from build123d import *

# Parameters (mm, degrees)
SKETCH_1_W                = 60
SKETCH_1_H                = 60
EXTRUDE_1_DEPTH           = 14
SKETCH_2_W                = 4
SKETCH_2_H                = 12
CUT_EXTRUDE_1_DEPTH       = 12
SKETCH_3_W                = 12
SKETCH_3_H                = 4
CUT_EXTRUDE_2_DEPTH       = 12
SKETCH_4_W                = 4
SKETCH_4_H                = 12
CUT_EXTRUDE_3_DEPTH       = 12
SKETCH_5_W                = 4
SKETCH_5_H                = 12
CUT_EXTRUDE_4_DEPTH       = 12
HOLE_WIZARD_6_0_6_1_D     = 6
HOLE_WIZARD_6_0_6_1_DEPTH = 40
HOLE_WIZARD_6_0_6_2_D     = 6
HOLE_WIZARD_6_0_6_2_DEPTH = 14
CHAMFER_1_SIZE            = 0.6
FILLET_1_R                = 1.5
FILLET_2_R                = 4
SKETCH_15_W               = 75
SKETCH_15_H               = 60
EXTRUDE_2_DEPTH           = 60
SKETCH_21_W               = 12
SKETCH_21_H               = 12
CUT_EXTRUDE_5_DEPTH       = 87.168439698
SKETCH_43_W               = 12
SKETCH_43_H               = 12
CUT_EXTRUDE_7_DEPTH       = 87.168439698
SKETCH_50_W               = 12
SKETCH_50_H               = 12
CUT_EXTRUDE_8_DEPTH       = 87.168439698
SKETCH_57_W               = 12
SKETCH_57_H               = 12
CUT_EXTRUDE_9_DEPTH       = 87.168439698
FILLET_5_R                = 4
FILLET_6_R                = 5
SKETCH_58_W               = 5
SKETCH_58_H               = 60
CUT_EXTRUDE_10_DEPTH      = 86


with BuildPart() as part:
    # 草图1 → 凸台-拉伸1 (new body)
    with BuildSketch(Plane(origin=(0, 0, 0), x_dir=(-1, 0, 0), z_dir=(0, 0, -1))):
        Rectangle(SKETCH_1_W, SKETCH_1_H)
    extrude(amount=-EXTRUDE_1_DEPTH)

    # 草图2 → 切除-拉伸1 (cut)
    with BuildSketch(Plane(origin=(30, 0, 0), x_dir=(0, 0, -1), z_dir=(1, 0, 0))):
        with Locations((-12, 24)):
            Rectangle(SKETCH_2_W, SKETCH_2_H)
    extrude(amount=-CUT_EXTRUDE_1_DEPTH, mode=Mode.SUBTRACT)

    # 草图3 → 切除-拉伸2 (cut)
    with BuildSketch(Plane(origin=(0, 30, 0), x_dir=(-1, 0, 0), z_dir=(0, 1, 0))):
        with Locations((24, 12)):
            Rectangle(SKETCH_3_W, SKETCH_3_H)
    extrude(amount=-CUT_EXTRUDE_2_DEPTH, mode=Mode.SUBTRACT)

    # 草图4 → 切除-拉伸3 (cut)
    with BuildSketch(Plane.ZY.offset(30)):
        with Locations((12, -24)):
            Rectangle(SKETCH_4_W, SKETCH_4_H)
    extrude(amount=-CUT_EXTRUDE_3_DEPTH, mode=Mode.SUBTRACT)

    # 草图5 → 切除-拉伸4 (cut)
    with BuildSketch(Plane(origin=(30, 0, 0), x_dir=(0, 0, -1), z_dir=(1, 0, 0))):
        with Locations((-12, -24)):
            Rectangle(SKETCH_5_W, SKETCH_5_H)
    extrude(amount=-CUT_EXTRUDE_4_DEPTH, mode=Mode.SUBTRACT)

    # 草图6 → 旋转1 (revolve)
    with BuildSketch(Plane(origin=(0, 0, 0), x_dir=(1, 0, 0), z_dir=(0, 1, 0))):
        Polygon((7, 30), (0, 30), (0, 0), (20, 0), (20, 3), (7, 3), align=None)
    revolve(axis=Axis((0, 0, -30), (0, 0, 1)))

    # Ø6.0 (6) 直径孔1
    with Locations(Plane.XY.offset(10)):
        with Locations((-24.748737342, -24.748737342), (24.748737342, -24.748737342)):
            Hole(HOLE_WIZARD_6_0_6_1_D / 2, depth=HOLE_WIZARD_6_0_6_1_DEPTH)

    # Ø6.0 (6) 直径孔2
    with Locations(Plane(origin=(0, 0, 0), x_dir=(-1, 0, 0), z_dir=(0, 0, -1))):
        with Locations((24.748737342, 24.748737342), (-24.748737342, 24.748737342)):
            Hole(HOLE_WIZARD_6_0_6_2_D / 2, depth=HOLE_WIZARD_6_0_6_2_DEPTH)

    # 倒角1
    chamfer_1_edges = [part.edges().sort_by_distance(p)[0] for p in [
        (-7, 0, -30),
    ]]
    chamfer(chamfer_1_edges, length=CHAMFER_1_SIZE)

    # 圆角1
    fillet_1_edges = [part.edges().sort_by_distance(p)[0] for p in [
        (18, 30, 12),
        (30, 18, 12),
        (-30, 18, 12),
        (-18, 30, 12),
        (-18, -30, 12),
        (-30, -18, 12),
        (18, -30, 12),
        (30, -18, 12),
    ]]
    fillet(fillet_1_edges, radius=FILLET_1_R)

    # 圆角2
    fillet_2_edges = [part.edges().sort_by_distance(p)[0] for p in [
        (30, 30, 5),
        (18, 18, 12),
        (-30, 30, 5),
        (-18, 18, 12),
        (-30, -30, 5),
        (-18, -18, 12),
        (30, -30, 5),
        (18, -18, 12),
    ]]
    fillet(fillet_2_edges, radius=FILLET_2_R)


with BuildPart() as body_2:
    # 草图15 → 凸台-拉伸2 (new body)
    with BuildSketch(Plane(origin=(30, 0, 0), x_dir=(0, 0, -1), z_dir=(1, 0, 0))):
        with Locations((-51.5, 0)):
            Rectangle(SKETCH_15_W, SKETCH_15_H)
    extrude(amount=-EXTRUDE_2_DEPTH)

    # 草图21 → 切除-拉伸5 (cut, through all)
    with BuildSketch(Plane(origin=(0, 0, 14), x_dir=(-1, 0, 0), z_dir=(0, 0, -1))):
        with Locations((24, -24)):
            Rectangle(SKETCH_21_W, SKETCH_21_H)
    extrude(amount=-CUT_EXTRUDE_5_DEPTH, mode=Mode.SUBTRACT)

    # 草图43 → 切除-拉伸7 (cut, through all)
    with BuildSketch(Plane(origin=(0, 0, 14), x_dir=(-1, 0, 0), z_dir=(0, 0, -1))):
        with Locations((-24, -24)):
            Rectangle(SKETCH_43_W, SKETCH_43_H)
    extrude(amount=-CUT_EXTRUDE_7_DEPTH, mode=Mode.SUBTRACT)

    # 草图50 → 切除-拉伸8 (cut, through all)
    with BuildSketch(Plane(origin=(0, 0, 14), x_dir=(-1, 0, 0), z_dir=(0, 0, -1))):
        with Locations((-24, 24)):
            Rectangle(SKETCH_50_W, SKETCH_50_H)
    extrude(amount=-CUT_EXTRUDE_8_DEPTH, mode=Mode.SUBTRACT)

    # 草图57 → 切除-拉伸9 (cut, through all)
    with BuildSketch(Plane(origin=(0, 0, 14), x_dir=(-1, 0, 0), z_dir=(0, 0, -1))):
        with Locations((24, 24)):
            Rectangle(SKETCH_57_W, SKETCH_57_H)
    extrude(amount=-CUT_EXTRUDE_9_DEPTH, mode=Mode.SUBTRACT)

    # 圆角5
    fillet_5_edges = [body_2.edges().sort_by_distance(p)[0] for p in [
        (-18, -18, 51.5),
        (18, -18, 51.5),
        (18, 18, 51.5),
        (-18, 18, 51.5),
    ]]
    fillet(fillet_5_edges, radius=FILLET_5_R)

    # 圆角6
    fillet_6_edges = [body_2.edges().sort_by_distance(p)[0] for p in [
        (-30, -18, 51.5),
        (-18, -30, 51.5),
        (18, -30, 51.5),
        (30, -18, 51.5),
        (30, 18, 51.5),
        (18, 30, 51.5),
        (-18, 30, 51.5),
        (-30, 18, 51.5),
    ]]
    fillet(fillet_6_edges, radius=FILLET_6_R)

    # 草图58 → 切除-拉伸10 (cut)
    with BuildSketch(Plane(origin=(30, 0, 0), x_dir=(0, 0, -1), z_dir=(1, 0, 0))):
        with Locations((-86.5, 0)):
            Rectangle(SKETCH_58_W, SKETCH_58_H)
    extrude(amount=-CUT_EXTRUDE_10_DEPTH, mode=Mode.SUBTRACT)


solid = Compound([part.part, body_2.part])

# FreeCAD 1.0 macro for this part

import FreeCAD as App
import Part
import Sketcher
from FreeCAD import Vector


def edges_at(feature, points):
    """Names of the edges that pass closest to the given points."""
    edges = feature.Shape.Edges
    near = lambda p: min(range(len(edges)), key=lambda i: edges[i].distToShape(Part.Vertex(*p))[0])
    return sorted({f"Edge{near(p) + 1}" for p in points})

doc = App.newDocument("Part")
body = doc.addObject("PartDesign::Body", "Body")

sketch1 = body.newObject("Sketcher::SketchObject", "Sketch")
sketch1.AttachmentSupport = (doc.getObject("XY_Plane"), [""])
sketch1.MapMode = "FlatFace"
sketch1.addGeometry([
    Part.LineSegment(Vector(30, 30, 0), Vector(30, -30, 0)),
    Part.LineSegment(Vector(30, -30, 0), Vector(-30, -30, 0)),
    Part.LineSegment(Vector(-30, -30, 0), Vector(-30, 30, 0)),
    Part.LineSegment(Vector(-30, 30, 0), Vector(30, 30, 0)),
], False)
sketch1.addConstraint([
    Sketcher.Constraint("Coincident", 0, 2, 1, 1),
    Sketcher.Constraint("Coincident", 1, 2, 2, 1),
    Sketcher.Constraint("Coincident", 2, 2, 3, 1),
    Sketcher.Constraint("Coincident", 3, 2, 0, 1),
    Sketcher.Constraint("Vertical", 0),
    Sketcher.Constraint("Horizontal", 1),
    Sketcher.Constraint("Vertical", 2),
    Sketcher.Constraint("Horizontal", 3),
    Sketcher.Constraint("Symmetric", 0, 2, 2, 2, -1, 1),
    Sketcher.Constraint("Equal", 3, 0),
    Sketcher.Constraint("DistanceX", 1, 2, 1, 1, 60.0),
])
pad1 = body.newObject("PartDesign::Pad", "Pad")
pad1.Profile = sketch1
pad1.Length = 14

sketch2 = body.newObject("Sketcher::SketchObject", "Sketch001")
sketch2.AttachmentSupport = (doc.getObject("YZ_Plane"), [""])
sketch2.MapMode = "FlatFace"
sketch2.AttachmentOffset = App.Placement(Vector(0, 0, 30), App.Rotation())
sketch2.addGeometry([
    Part.LineSegment(Vector(30, 14, 0), Vector(18, 14, 0)),
    Part.LineSegment(Vector(18, 14, 0), Vector(18, 10, 0)),
    Part.LineSegment(Vector(18, 10, 0), Vector(30, 10, 0)),
    Part.LineSegment(Vector(30, 10, 0), Vector(30, 14, 0)),
], False)
sketch2.addConstraint([
    Sketcher.Constraint("Coincident", 0, 2, 1, 1),
    Sketcher.Constraint("Coincident", 1, 2, 2, 1),
    Sketcher.Constraint("Coincident", 2, 2, 3, 1),
    Sketcher.Constraint("Coincident", 3, 2, 0, 1),
    Sketcher.Constraint("Horizontal", 0),
    Sketcher.Constraint("Vertical", 1),
    Sketcher.Constraint("Horizontal", 2),
    Sketcher.Constraint("Vertical", 3),
    Sketcher.Constraint("DistanceX", 0, 2, 0, 1, 12.0),
    Sketcher.Constraint("DistanceY", 1, 2, 1, 1, 4.0),
    Sketcher.Constraint("DistanceX", -1, 1, 0, 2, 18.0),
    Sketcher.Constraint("DistanceY", -1, 1, 0, 2, 14.0),
])
pocket1 = body.newObject("PartDesign::Pocket", "Pocket")
pocket1.Profile = sketch2
pocket1.Length = 12

sketch3 = body.newObject("Sketcher::SketchObject", "Sketch002")
sketch3.AttachmentSupport = (doc.getObject("XZ_Plane"), [""])
sketch3.MapMode = "FlatFace"
sketch3.AttachmentOffset = App.Placement(Vector(0, 0, -30), App.Rotation())
sketch3.addGeometry([
    Part.LineSegment(Vector(-18, 14, 0), Vector(-18, 10, 0)),
    Part.LineSegment(Vector(-18, 10, 0), Vector(-30, 10, 0)),
    Part.LineSegment(Vector(-30, 10, 0), Vector(-30, 14, 0)),
    Part.LineSegment(Vector(-30, 14, 0), Vector(-18, 14, 0)),
], False)
sketch3.addConstraint([
    Sketcher.Constraint("Coincident", 0, 2, 1, 1),
    Sketcher.Constraint("Coincident", 1, 2, 2, 1),
    Sketcher.Constraint("Coincident", 2, 2, 3, 1),
    Sketcher.Constraint("Coincident", 3, 2, 0, 1),
    Sketcher.Constraint("Vertical", 0),
    Sketcher.Constraint("Horizontal", 1),
    Sketcher.Constraint("Vertical", 2),
    Sketcher.Constraint("Horizontal", 3),
    Sketcher.Constraint("DistanceX", 1, 2, 1, 1, 12.0),
    Sketcher.Constraint("DistanceY", 0, 2, 0, 1, 4.0),
    Sketcher.Constraint("DistanceX", 0, 2, -1, 1, 18.0),
    Sketcher.Constraint("DistanceY", -1, 1, 0, 2, 10.0),
])
pocket2 = body.newObject("PartDesign::Pocket", "Pocket001")
pocket2.Profile = sketch3
pocket2.Length = 12
pocket2.Reversed = True

sketch4 = body.newObject("Sketcher::SketchObject", "Sketch003")
sketch4.AttachmentSupport = (doc.getObject("YZ_Plane"), [""])
sketch4.MapMode = "FlatFace"
sketch4.AttachmentOffset = App.Placement(Vector(0, 0, -30), App.Rotation())
sketch4.addGeometry([
    Part.LineSegment(Vector(-18, 10, 0), Vector(-30, 10, 0)),
    Part.LineSegment(Vector(-30, 10, 0), Vector(-30, 14, 0)),
    Part.LineSegment(Vector(-30, 14, 0), Vector(-18, 14, 0)),
    Part.LineSegment(Vector(-18, 14, 0), Vector(-18, 10, 0)),
], False)
sketch4.addConstraint([
    Sketcher.Constraint("Coincident", 0, 2, 1, 1),
    Sketcher.Constraint("Coincident", 1, 2, 2, 1),
    Sketcher.Constraint("Coincident", 2, 2, 3, 1),
    Sketcher.Constraint("Coincident", 3, 2, 0, 1),
    Sketcher.Constraint("Horizontal", 0),
    Sketcher.Constraint("Vertical", 1),
    Sketcher.Constraint("Horizontal", 2),
    Sketcher.Constraint("Vertical", 3),
    Sketcher.Constraint("DistanceX", 0, 2, 0, 1, 12.0),
    Sketcher.Constraint("DistanceY", 1, 1, 1, 2, 4.0),
    Sketcher.Constraint("DistanceX", 0, 2, -1, 1, 30.0),
    Sketcher.Constraint("DistanceY", -1, 1, 0, 2, 10.0),
])
pocket3 = body.newObject("PartDesign::Pocket", "Pocket002")
pocket3.Profile = sketch4
pocket3.Length = 12
pocket3.Reversed = True

sketch5 = body.newObject("Sketcher::SketchObject", "Sketch004")
sketch5.AttachmentSupport = (doc.getObject("YZ_Plane"), [""])
sketch5.MapMode = "FlatFace"
sketch5.AttachmentOffset = App.Placement(Vector(0, 0, 30), App.Rotation())
sketch5.addGeometry([
    Part.LineSegment(Vector(-18, 14, 0), Vector(-30, 14, 0)),
    Part.LineSegment(Vector(-30, 14, 0), Vector(-30, 10, 0)),
    Part.LineSegment(Vector(-30, 10, 0), Vector(-18, 10, 0)),
    Part.LineSegment(Vector(-18, 10, 0), Vector(-18, 14, 0)),
], False)
sketch5.addConstraint([
    Sketcher.Constraint("Coincident", 0, 2, 1, 1),
    Sketcher.Constraint("Coincident", 1, 2, 2, 1),
    Sketcher.Constraint("Coincident", 2, 2, 3, 1),
    Sketcher.Constraint("Coincident", 3, 2, 0, 1),
    Sketcher.Constraint("Horizontal", 0),
    Sketcher.Constraint("Vertical", 1),
    Sketcher.Constraint("Horizontal", 2),
    Sketcher.Constraint("Vertical", 3),
    Sketcher.Constraint("DistanceX", 0, 2, 0, 1, 12.0),
    Sketcher.Constraint("DistanceY", 1, 2, 1, 1, 4.0),
    Sketcher.Constraint("DistanceX", 0, 2, -1, 1, 30.0),
    Sketcher.Constraint("DistanceY", -1, 1, 0, 2, 14.0),
])
pocket4 = body.newObject("PartDesign::Pocket", "Pocket003")
pocket4.Profile = sketch5
pocket4.Length = 12

sketch6 = body.newObject("Sketcher::SketchObject", "Sketch005")
sketch6.AttachmentSupport = (doc.getObject("XZ_Plane"), [""])
sketch6.MapMode = "FlatFace"
sketch6.addGeometry([
    Part.LineSegment(Vector(7, -30, 0), Vector(0, -30, 0)),
    Part.LineSegment(Vector(0, -30, 0), Vector(0, 0, 0)),
    Part.LineSegment(Vector(0, 0, 0), Vector(20, 0, 0)),
    Part.LineSegment(Vector(20, 0, 0), Vector(20, -3, 0)),
    Part.LineSegment(Vector(20, -3, 0), Vector(7, -3, 0)),
    Part.LineSegment(Vector(7, -3, 0), Vector(7, -30, 0)),
], False)
sketch6.addConstraint([
    Sketcher.Constraint("Coincident", 0, 2, 1, 1),
    Sketcher.Constraint("Coincident", 1, 2, 2, 1),
    Sketcher.Constraint("Coincident", 2, 2, 3, 1),
    Sketcher.Constraint("Coincident", 3, 2, 4, 1),
    Sketcher.Constraint("Coincident", 4, 2, 5, 1),
    Sketcher.Constraint("Coincident", 5, 2, 0, 1),
    Sketcher.Constraint("Horizontal", 0),
    Sketcher.Constraint("Vertical", 1),
    Sketcher.Constraint("Horizontal", 2),
    Sketcher.Constraint("Vertical", 3),
    Sketcher.Constraint("Horizontal", 4),
    Sketcher.Constraint("Vertical", 5),
    Sketcher.Constraint("Coincident", 1, 2, -1, 1),
    Sketcher.Constraint("DistanceX", 0, 2, 0, 1, 7.0),
    Sketcher.Constraint("DistanceX", 2, 1, 2, 2, 20.0),
    Sketcher.Constraint("DistanceY", 1, 1, 1, 2, 30.0),
    Sketcher.Constraint("DistanceY", 3, 2, 3, 1, 3.0),
])
revolution = body.newObject("PartDesign::Revolution", "Revolution")
revolution.Profile = sketch6
revolution.ReferenceAxis = (sketch6, ["V_Axis"])
revolution.Angle = 360

sketch7 = body.newObject("Sketcher::SketchObject", "Sketch006")
sketch7.AttachmentSupport = (doc.getObject("XY_Plane"), [""])
sketch7.MapMode = "FlatFace"
sketch7.AttachmentOffset = App.Placement(Vector(0, 0, 10), App.Rotation())
sketch7.addGeometry([
    Part.Circle(Vector(-24.748737, -24.748737, 0), Vector(0, 0, 1), 3),
    Part.Circle(Vector(24.748737, -24.748737, 0), Vector(0, 0, 1), 3),
], False)
sketch7.addConstraint([
    Sketcher.Constraint("Equal", 0, 1),
    Sketcher.Constraint("Symmetric", 0, 3, 1, 3, -2),
    Sketcher.Constraint("Diameter", 0, 6.0),
    Sketcher.Constraint("DistanceX", 0, 3, -1, 1, 24.748737),
    Sketcher.Constraint("DistanceY", 0, 3, -1, 1, 24.748737),
])
doc.recompute()
hole = body.newObject("PartDesign::Hole", "Hole")
hole.Profile = sketch7
hole.ThreadType = "None"
hole.Diameter = 6
hole.DepthType = "Dimension"
hole.Depth = 40
hole.DrillPoint = "Flat"

sketch8 = body.newObject("Sketcher::SketchObject", "Sketch007")
sketch8.AttachmentSupport = (doc.getObject("XY_Plane"), [""])
sketch8.MapMode = "FlatFace"
sketch8.addGeometry([
    Part.Circle(Vector(-24.748737, 24.748737, 0), Vector(0, 0, 1), 3),
    Part.Circle(Vector(24.748737, 24.748737, 0), Vector(0, 0, 1), 3),
], False)
sketch8.addConstraint([
    Sketcher.Constraint("Equal", 0, 1),
    Sketcher.Constraint("Symmetric", 0, 3, 1, 3, -2),
    Sketcher.Constraint("Diameter", 0, 6.0),
    Sketcher.Constraint("DistanceX", 0, 3, -1, 1, 24.748737),
    Sketcher.Constraint("DistanceY", -1, 1, 0, 3, 24.748737),
])
doc.recompute()
hole2 = body.newObject("PartDesign::Hole", "Hole001")
hole2.Profile = sketch8
hole2.ThreadType = "None"
hole2.Diameter = 6
hole2.DepthType = "Dimension"
hole2.Depth = 14
hole2.DrillPoint = "Flat"
hole2.Reversed = True
doc.recompute()

chamfer = body.newObject("PartDesign::Chamfer", "Chamfer")
chamfer.Base = (hole2, edges_at(hole2, [(-7, 0, -30)]))
chamfer.Size = 0.6
doc.recompute()

fillet = body.newObject("PartDesign::Fillet", "Fillet")
fillet.Base = (chamfer, edges_at(chamfer, [
    (18, 30, 12),
    (30, 18, 12),
    (-30, 18, 12),
    (-18, 30, 12),
    (-18, -30, 12),
    (-30, -18, 12),
    (18, -30, 12),
    (30, -18, 12),
]))
fillet.Radius = 1.5
doc.recompute()

fillet2 = body.newObject("PartDesign::Fillet", "Fillet001")
fillet2.Base = (fillet, edges_at(fillet, [
    (30, 30, 5),
    (18, 18, 12),
    (-30, 30, 5),
    (-18, 18, 12),
    (-30, -30, 5),
    (-18, -18, 12),
    (30, -30, 5),
    (18, -18, 12),
]))
fillet2.Radius = 4
body2 = doc.addObject("PartDesign::Body", "Body001")

sketch9 = body2.newObject("Sketcher::SketchObject", "Sketch008")
sketch9.AttachmentSupport = (doc.getObject("YZ_Plane001"), [""])
sketch9.MapMode = "FlatFace"
sketch9.AttachmentOffset = App.Placement(Vector(0, 0, 30), App.Rotation())
sketch9.addGeometry([
    Part.LineSegment(Vector(30, 89, 0), Vector(-30, 89, 0)),
    Part.LineSegment(Vector(-30, 89, 0), Vector(-30, 14, 0)),
    Part.LineSegment(Vector(-30, 14, 0), Vector(30, 14, 0)),
    Part.LineSegment(Vector(30, 14, 0), Vector(30, 89, 0)),
], False)
sketch9.addConstraint([
    Sketcher.Constraint("Coincident", 0, 2, 1, 1),
    Sketcher.Constraint("Coincident", 1, 2, 2, 1),
    Sketcher.Constraint("Coincident", 2, 2, 3, 1),
    Sketcher.Constraint("Coincident", 3, 2, 0, 1),
    Sketcher.Constraint("Horizontal", 0),
    Sketcher.Constraint("Vertical", 1),
    Sketcher.Constraint("Horizontal", 2),
    Sketcher.Constraint("Vertical", 3),
    Sketcher.Constraint("DistanceX", 0, 2, 0, 1, 60.0),
    Sketcher.Constraint("DistanceY", 1, 2, 1, 1, 75.0),
    Sketcher.Constraint("DistanceX", 0, 2, -1, 1, 30.0),
    Sketcher.Constraint("DistanceY", -1, 1, 0, 2, 89.0),
])
pad2 = body2.newObject("PartDesign::Pad", "Pad001")
pad2.Profile = sketch9
pad2.Length = 60
pad2.Reversed = True

sketch10 = body2.newObject("Sketcher::SketchObject", "Sketch009")
sketch10.AttachmentSupport = (doc.getObject("XY_Plane001"), [""])
sketch10.MapMode = "FlatFace"
sketch10.AttachmentOffset = App.Placement(Vector(0, 0, 14), App.Rotation())
sketch10.addGeometry([
    Part.LineSegment(Vector(-18, -18, 0), Vector(-18, -30, 0)),
    Part.LineSegment(Vector(-18, -30, 0), Vector(-30, -30, 0)),
    Part.LineSegment(Vector(-30, -30, 0), Vector(-30, -18, 0)),
    Part.LineSegment(Vector(-30, -18, 0), Vector(-18, -18, 0)),
], False)
sketch10.addConstraint([
    Sketcher.Constraint("Coincident", 0, 2, 1, 1),
    Sketcher.Constraint("Coincident", 1, 2, 2, 1),
    Sketcher.Constraint("Coincident", 2, 2, 3, 1),
    Sketcher.Constraint("Coincident", 3, 2, 0, 1),
    Sketcher.Constraint("Vertical", 0),
    Sketcher.Constraint("Horizontal", 1),
    Sketcher.Constraint("Vertical", 2),
    Sketcher.Constraint("Horizontal", 3),
    Sketcher.Constraint("Equal", 3, 0),
    Sketcher.Constraint("DistanceX", 1, 2, 1, 1, 12.0),
    Sketcher.Constraint("DistanceX", 0, 2, -1, 1, 18.0),
    Sketcher.Constraint("DistanceY", 0, 2, -1, 1, 30.0),
])
pocket5 = body2.newObject("PartDesign::Pocket", "Pocket004")
pocket5.Profile = sketch10
pocket5.Type = "ThroughAll"
pocket5.Reversed = True

sketch11 = body2.newObject("Sketcher::SketchObject", "Sketch010")
sketch11.AttachmentSupport = (doc.getObject("XY_Plane001"), [""])
sketch11.MapMode = "FlatFace"
sketch11.AttachmentOffset = App.Placement(Vector(0, 0, 14), App.Rotation())
sketch11.addGeometry([
    Part.LineSegment(Vector(30, -18, 0), Vector(30, -30, 0)),
    Part.LineSegment(Vector(30, -30, 0), Vector(18, -30, 0)),
    Part.LineSegment(Vector(18, -30, 0), Vector(18, -18, 0)),
    Part.LineSegment(Vector(18, -18, 0), Vector(30, -18, 0)),
], False)
sketch11.addConstraint([
    Sketcher.Constraint("Coincident", 0, 2, 1, 1),
    Sketcher.Constraint("Coincident", 1, 2, 2, 1),
    Sketcher.Constraint("Coincident", 2, 2, 3, 1),
    Sketcher.Constraint("Coincident", 3, 2, 0, 1),
    Sketcher.Constraint("Vertical", 0),
    Sketcher.Constraint("Horizontal", 1),
    Sketcher.Constraint("Vertical", 2),
    Sketcher.Constraint("Horizontal", 3),
    Sketcher.Constraint("Equal", 3, 0),
    Sketcher.Constraint("DistanceX", 1, 2, 1, 1, 12.0),
    Sketcher.Constraint("DistanceX", -1, 1, 0, 2, 30.0),
    Sketcher.Constraint("DistanceY", 0, 2, -1, 1, 30.0),
])
pocket6 = body2.newObject("PartDesign::Pocket", "Pocket005")
pocket6.Profile = sketch11
pocket6.Type = "ThroughAll"
pocket6.Reversed = True

sketch12 = body2.newObject("Sketcher::SketchObject", "Sketch011")
sketch12.AttachmentSupport = (doc.getObject("XY_Plane001"), [""])
sketch12.MapMode = "FlatFace"
sketch12.AttachmentOffset = App.Placement(Vector(0, 0, 14), App.Rotation())
sketch12.addGeometry([
    Part.LineSegment(Vector(30, 30, 0), Vector(30, 18, 0)),
    Part.LineSegment(Vector(30, 18, 0), Vector(18, 18, 0)),
    Part.LineSegment(Vector(18, 18, 0), Vector(18, 30, 0)),
    Part.LineSegment(Vector(18, 30, 0), Vector(30, 30, 0)),
], False)
sketch12.addConstraint([
    Sketcher.Constraint("Coincident", 0, 2, 1, 1),
    Sketcher.Constraint("Coincident", 1, 2, 2, 1),
    Sketcher.Constraint("Coincident", 2, 2, 3, 1),
    Sketcher.Constraint("Coincident", 3, 2, 0, 1),
    Sketcher.Constraint("Vertical", 0),
    Sketcher.Constraint("Horizontal", 1),
    Sketcher.Constraint("Vertical", 2),
    Sketcher.Constraint("Horizontal", 3),
    Sketcher.Constraint("Equal", 3, 0),
    Sketcher.Constraint("DistanceX", 1, 2, 1, 1, 12.0),
    Sketcher.Constraint("DistanceX", -1, 1, 0, 2, 30.0),
    Sketcher.Constraint("DistanceY", -1, 1, 0, 2, 18.0),
])
pocket7 = body2.newObject("PartDesign::Pocket", "Pocket006")
pocket7.Profile = sketch12
pocket7.Type = "ThroughAll"
pocket7.Reversed = True

sketch13 = body2.newObject("Sketcher::SketchObject", "Sketch012")
sketch13.AttachmentSupport = (doc.getObject("XY_Plane001"), [""])
sketch13.MapMode = "FlatFace"
sketch13.AttachmentOffset = App.Placement(Vector(0, 0, 14), App.Rotation())
sketch13.addGeometry([
    Part.LineSegment(Vector(-18, 30, 0), Vector(-18, 18, 0)),
    Part.LineSegment(Vector(-18, 18, 0), Vector(-30, 18, 0)),
    Part.LineSegment(Vector(-30, 18, 0), Vector(-30, 30, 0)),
    Part.LineSegment(Vector(-30, 30, 0), Vector(-18, 30, 0)),
], False)
sketch13.addConstraint([
    Sketcher.Constraint("Coincident", 0, 2, 1, 1),
    Sketcher.Constraint("Coincident", 1, 2, 2, 1),
    Sketcher.Constraint("Coincident", 2, 2, 3, 1),
    Sketcher.Constraint("Coincident", 3, 2, 0, 1),
    Sketcher.Constraint("Vertical", 0),
    Sketcher.Constraint("Horizontal", 1),
    Sketcher.Constraint("Vertical", 2),
    Sketcher.Constraint("Horizontal", 3),
    Sketcher.Constraint("Equal", 3, 0),
    Sketcher.Constraint("DistanceX", 1, 2, 1, 1, 12.0),
    Sketcher.Constraint("DistanceX", 0, 2, -1, 1, 18.0),
    Sketcher.Constraint("DistanceY", -1, 1, 0, 2, 18.0),
])
pocket8 = body2.newObject("PartDesign::Pocket", "Pocket007")
pocket8.Profile = sketch13
pocket8.Type = "ThroughAll"
pocket8.Reversed = True
doc.recompute()

fillet3 = body2.newObject("PartDesign::Fillet", "Fillet002")
fillet3.Base = (pocket8, edges_at(pocket8, [
    (-18, -18, 51.5),
    (18, -18, 51.5),
    (18, 18, 51.5),
    (-18, 18, 51.5),
]))
fillet3.Radius = 4
doc.recompute()

fillet4 = body2.newObject("PartDesign::Fillet", "Fillet003")
fillet4.Base = (fillet3, edges_at(fillet3, [
    (-30, -18, 51.5),
    (-18, -30, 51.5),
    (18, -30, 51.5),
    (30, -18, 51.5),
    (30, 18, 51.5),
    (18, 30, 51.5),
    (-18, 30, 51.5),
    (-30, 18, 51.5),
]))
fillet4.Radius = 5

sketch14 = body2.newObject("Sketcher::SketchObject", "Sketch013")
sketch14.AttachmentSupport = (doc.getObject("YZ_Plane001"), [""])
sketch14.MapMode = "FlatFace"
sketch14.AttachmentOffset = App.Placement(Vector(0, 0, 30), App.Rotation())
sketch14.addGeometry([
    Part.LineSegment(Vector(30, 89, 0), Vector(-30, 89, 0)),
    Part.LineSegment(Vector(-30, 89, 0), Vector(-30, 84, 0)),
    Part.LineSegment(Vector(-30, 84, 0), Vector(30, 84, 0)),
    Part.LineSegment(Vector(30, 84, 0), Vector(30, 89, 0)),
], False)
sketch14.addConstraint([
    Sketcher.Constraint("Coincident", 0, 2, 1, 1),
    Sketcher.Constraint("Coincident", 1, 2, 2, 1),
    Sketcher.Constraint("Coincident", 2, 2, 3, 1),
    Sketcher.Constraint("Coincident", 3, 2, 0, 1),
    Sketcher.Constraint("Horizontal", 0),
    Sketcher.Constraint("Vertical", 1),
    Sketcher.Constraint("Horizontal", 2),
    Sketcher.Constraint("Vertical", 3),
    Sketcher.Constraint("DistanceX", 0, 2, 0, 1, 60.0),
    Sketcher.Constraint("DistanceY", 1, 2, 1, 1, 5.0),
    Sketcher.Constraint("DistanceX", 0, 2, -1, 1, 30.0),
    Sketcher.Constraint("DistanceY", -1, 1, 0, 2, 89.0),
])
pocket9 = body2.newObject("PartDesign::Pocket", "Pocket008")
pocket9.Profile = sketch14
pocket9.Length = 86

doc.recompute()
